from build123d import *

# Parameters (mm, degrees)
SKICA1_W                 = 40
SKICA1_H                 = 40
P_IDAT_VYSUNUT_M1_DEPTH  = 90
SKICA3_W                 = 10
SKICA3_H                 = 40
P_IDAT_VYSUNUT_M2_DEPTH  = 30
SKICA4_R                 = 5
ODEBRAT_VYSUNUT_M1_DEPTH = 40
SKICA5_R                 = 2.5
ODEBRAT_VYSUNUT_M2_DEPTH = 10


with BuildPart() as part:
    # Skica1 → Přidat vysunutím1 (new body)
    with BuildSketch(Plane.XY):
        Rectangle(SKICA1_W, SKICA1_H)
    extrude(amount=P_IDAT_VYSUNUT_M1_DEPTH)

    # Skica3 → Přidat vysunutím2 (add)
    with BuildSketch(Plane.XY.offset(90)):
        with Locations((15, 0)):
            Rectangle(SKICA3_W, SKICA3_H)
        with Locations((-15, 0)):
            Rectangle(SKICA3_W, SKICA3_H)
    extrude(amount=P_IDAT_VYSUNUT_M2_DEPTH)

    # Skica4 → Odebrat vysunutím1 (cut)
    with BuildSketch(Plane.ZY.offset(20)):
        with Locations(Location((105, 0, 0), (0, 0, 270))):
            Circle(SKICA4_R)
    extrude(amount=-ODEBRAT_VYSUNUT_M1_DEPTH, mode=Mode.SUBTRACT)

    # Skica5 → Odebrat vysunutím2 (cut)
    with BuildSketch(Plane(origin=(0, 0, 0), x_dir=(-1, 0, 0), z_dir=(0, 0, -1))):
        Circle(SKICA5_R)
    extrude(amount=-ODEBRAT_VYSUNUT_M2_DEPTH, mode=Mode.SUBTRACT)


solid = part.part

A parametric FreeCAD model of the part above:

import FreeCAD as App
import Part
import Sketcher
Q = App.Units.Quantity

doc = App.newDocument("Part")
body = doc.addObject("PartDesign::Body", "Body")

sketch1 = doc.addObject("Sketcher::SketchObject", "Sketch")
body.addObject(sketch1)
sketch1.AttachmentSupport = (doc.XY_Plane, [""])
sketch1.MapMode = "FlatFace"
sketch1.addGeometry([
    Part.LineSegment(App.Vector(-20, 20, 0), App.Vector(-20, -20, 0)),
    Part.LineSegment(App.Vector(-20, -20, 0), App.Vector(20, -20, 0)),
    Part.LineSegment(App.Vector(20, -20, 0), App.Vector(20, 20, 0)),
    Part.LineSegment(App.Vector(20, 20, 0), App.Vector(-20, 20, 0)),
], False)
sketch1.addConstraint([
    Sketcher.Constraint("Coincident", 0, 2, 1, 1),
    Sketcher.Constraint("Coincident", 1, 2, 2, 1),
    Sketcher.Constraint("Coincident", 2, 2, 3, 1),
    Sketcher.Constraint("Coincident", 3, 2, 0, 1),
    Sketcher.Constraint("Vertical", 0),
    Sketcher.Constraint("Horizontal", 1),
    Sketcher.Constraint("Vertical", 2),
    Sketcher.Constraint("Horizontal", 3),
    Sketcher.Constraint("Symmetric", 0, 2, 2, 2, -1, 1),
    Sketcher.Constraint("Equal", 3, 0),
    Sketcher.Constraint("DistanceX", 1, 1, 1, 2, Q("40 mm")),
])
pad1 = doc.addObject("PartDesign::Pad", "Pad")
body.addObject(pad1)
pad1.Profile = sketch1
pad1.Length = 90

sketch2 = doc.addObject("Sketcher::SketchObject", "Sketch001")
body.addObject(sketch2)
sketch2.AttachmentSupport = (doc.XY_Plane, [""])
sketch2.MapMode = "FlatFace"
sketch2.AttachmentOffset = App.Placement(App.Vector(0, 0, 90), App.Rotation())
sketch2.addGeometry([
    Part.LineSegment(App.Vector(10, 20, 0), App.Vector(10, -20, 0)),
    Part.LineSegment(App.Vector(10, -20, 0), App.Vector(20, -20, 0)),
    Part.LineSegment(App.Vector(20, -20, 0), App.Vector(20, 20, 0)),
    Part.LineSegment(App.Vector(20, 20, 0), App.Vector(10, 20, 0)),
    Part.LineSegment(App.Vector(-20, 20, 0), App.Vector(-20, -20, 0)),
    Part.LineSegment(App.Vector(-20, -20, 0), App.Vector(-10, -20, 0)),
    Part.LineSegment(App.Vector(-10, -20, 0), App.Vector(-10, 20, 0)),
    Part.LineSegment(App.Vector(-10, 20, 0), App.Vector(-20, 20, 0)),
], False)
sketch2.addConstraint([
    Sketcher.Constraint("Coincident", 0, 2, 1, 1),
    Sketcher.Constraint("Coincident", 1, 2, 2, 1),
    Sketcher.Constraint("Coincident", 2, 2, 3, 1),
    Sketcher.Constraint("Coincident", 3, 2, 0, 1),
    Sketcher.Constraint("Coincident", 4, 2, 5, 1),
    Sketcher.Constraint("Coincident", 5, 2, 6, 1),
    Sketcher.Constraint("Coincident", 6, 2, 7, 1),
    Sketcher.Constraint("Coincident", 7, 2, 4, 1),
    Sketcher.Constraint("Vertical", 0),
    Sketcher.Constraint("Horizontal", 1),
    Sketcher.Constraint("Vertical", 2),
    Sketcher.Constraint("Horizontal", 3),
    Sketcher.Constraint("Vertical", 4),
    Sketcher.Constraint("Horizontal", 5),
    Sketcher.Constraint("Vertical", 6),
    Sketcher.Constraint("Horizontal", 7),
    Sketcher.Constraint("Symmetric", 2, 2, 4, 2, -1, 1),
    Sketcher.Constraint("Symmetric", 0, 2, 6, 2, -1, 1),
    Sketcher.Constraint("Horizontal", 1, 2, 4, 2),
    Sketcher.Constraint("DistanceX", 1, 1, 1, 2, Q("10 mm")),
    Sketcher.Constraint("DistanceY", 0, 2, 0, 1, Q("40 mm")),
    Sketcher.Constraint("DistanceX", -1, 1, 0, 2, Q("10 mm")),
])
pad2 = doc.addObject("PartDesign::Pad", "Pad001")
body.addObject(pad2)
pad2.Profile = sketch2
pad2.Length = 30

sketch3 = doc.addObject("Sketcher::SketchObject", "Sketch002")
body.addObject(sketch3)
sketch3.AttachmentSupport = (doc.YZ_Plane, [""])
sketch3.MapMode = "FlatFace"
sketch3.AttachmentOffset = App.Placement(App.Vector(0, 0, -20), App.Rotation())
sketch3.addGeometry(Part.Circle(App.Vector(0, 105, 0), App.Vector(0, 0, 1), 5), False)
sketch3.addConstraint([
    Sketcher.Constraint("PointOnObject", 0, 3, -2),
    Sketcher.Constraint("Diameter", 0, Q("10 mm")),
    Sketcher.Constraint("DistanceY", -1, 1, 0, 3, Q("105 mm")),
])
pocket1 = doc.addObject("PartDesign::Pocket", "Pocket")
body.addObject(pocket1)
pocket1.Profile = sketch3
pocket1.Length = 40
pocket1.Reversed = True

sketch4 = doc.addObject("Sketcher::SketchObject", "Sketch003")
body.addObject(sketch4)
sketch4.AttachmentSupport = (doc.XY_Plane, [""])
sketch4.MapMode = "FlatFace"
sketch4.addGeometry(Part.Circle(App.Vector(0, 0, 0), App.Vector(0, 0, 1), 2.5), False)
sketch4.addConstraint([
    Sketcher.Constraint("Coincident", 0, 3, -1, 1),
    Sketcher.Constraint("Diameter", 0, Q("5 mm")),
])
pocket2 = doc.addObject("PartDesign::Pocket", "Pocket001")
body.addObject(pocket2)
pocket2.Profile = sketch4
pocket2.Length = 10
pocket2.Reversed = True

doc.recompute()
